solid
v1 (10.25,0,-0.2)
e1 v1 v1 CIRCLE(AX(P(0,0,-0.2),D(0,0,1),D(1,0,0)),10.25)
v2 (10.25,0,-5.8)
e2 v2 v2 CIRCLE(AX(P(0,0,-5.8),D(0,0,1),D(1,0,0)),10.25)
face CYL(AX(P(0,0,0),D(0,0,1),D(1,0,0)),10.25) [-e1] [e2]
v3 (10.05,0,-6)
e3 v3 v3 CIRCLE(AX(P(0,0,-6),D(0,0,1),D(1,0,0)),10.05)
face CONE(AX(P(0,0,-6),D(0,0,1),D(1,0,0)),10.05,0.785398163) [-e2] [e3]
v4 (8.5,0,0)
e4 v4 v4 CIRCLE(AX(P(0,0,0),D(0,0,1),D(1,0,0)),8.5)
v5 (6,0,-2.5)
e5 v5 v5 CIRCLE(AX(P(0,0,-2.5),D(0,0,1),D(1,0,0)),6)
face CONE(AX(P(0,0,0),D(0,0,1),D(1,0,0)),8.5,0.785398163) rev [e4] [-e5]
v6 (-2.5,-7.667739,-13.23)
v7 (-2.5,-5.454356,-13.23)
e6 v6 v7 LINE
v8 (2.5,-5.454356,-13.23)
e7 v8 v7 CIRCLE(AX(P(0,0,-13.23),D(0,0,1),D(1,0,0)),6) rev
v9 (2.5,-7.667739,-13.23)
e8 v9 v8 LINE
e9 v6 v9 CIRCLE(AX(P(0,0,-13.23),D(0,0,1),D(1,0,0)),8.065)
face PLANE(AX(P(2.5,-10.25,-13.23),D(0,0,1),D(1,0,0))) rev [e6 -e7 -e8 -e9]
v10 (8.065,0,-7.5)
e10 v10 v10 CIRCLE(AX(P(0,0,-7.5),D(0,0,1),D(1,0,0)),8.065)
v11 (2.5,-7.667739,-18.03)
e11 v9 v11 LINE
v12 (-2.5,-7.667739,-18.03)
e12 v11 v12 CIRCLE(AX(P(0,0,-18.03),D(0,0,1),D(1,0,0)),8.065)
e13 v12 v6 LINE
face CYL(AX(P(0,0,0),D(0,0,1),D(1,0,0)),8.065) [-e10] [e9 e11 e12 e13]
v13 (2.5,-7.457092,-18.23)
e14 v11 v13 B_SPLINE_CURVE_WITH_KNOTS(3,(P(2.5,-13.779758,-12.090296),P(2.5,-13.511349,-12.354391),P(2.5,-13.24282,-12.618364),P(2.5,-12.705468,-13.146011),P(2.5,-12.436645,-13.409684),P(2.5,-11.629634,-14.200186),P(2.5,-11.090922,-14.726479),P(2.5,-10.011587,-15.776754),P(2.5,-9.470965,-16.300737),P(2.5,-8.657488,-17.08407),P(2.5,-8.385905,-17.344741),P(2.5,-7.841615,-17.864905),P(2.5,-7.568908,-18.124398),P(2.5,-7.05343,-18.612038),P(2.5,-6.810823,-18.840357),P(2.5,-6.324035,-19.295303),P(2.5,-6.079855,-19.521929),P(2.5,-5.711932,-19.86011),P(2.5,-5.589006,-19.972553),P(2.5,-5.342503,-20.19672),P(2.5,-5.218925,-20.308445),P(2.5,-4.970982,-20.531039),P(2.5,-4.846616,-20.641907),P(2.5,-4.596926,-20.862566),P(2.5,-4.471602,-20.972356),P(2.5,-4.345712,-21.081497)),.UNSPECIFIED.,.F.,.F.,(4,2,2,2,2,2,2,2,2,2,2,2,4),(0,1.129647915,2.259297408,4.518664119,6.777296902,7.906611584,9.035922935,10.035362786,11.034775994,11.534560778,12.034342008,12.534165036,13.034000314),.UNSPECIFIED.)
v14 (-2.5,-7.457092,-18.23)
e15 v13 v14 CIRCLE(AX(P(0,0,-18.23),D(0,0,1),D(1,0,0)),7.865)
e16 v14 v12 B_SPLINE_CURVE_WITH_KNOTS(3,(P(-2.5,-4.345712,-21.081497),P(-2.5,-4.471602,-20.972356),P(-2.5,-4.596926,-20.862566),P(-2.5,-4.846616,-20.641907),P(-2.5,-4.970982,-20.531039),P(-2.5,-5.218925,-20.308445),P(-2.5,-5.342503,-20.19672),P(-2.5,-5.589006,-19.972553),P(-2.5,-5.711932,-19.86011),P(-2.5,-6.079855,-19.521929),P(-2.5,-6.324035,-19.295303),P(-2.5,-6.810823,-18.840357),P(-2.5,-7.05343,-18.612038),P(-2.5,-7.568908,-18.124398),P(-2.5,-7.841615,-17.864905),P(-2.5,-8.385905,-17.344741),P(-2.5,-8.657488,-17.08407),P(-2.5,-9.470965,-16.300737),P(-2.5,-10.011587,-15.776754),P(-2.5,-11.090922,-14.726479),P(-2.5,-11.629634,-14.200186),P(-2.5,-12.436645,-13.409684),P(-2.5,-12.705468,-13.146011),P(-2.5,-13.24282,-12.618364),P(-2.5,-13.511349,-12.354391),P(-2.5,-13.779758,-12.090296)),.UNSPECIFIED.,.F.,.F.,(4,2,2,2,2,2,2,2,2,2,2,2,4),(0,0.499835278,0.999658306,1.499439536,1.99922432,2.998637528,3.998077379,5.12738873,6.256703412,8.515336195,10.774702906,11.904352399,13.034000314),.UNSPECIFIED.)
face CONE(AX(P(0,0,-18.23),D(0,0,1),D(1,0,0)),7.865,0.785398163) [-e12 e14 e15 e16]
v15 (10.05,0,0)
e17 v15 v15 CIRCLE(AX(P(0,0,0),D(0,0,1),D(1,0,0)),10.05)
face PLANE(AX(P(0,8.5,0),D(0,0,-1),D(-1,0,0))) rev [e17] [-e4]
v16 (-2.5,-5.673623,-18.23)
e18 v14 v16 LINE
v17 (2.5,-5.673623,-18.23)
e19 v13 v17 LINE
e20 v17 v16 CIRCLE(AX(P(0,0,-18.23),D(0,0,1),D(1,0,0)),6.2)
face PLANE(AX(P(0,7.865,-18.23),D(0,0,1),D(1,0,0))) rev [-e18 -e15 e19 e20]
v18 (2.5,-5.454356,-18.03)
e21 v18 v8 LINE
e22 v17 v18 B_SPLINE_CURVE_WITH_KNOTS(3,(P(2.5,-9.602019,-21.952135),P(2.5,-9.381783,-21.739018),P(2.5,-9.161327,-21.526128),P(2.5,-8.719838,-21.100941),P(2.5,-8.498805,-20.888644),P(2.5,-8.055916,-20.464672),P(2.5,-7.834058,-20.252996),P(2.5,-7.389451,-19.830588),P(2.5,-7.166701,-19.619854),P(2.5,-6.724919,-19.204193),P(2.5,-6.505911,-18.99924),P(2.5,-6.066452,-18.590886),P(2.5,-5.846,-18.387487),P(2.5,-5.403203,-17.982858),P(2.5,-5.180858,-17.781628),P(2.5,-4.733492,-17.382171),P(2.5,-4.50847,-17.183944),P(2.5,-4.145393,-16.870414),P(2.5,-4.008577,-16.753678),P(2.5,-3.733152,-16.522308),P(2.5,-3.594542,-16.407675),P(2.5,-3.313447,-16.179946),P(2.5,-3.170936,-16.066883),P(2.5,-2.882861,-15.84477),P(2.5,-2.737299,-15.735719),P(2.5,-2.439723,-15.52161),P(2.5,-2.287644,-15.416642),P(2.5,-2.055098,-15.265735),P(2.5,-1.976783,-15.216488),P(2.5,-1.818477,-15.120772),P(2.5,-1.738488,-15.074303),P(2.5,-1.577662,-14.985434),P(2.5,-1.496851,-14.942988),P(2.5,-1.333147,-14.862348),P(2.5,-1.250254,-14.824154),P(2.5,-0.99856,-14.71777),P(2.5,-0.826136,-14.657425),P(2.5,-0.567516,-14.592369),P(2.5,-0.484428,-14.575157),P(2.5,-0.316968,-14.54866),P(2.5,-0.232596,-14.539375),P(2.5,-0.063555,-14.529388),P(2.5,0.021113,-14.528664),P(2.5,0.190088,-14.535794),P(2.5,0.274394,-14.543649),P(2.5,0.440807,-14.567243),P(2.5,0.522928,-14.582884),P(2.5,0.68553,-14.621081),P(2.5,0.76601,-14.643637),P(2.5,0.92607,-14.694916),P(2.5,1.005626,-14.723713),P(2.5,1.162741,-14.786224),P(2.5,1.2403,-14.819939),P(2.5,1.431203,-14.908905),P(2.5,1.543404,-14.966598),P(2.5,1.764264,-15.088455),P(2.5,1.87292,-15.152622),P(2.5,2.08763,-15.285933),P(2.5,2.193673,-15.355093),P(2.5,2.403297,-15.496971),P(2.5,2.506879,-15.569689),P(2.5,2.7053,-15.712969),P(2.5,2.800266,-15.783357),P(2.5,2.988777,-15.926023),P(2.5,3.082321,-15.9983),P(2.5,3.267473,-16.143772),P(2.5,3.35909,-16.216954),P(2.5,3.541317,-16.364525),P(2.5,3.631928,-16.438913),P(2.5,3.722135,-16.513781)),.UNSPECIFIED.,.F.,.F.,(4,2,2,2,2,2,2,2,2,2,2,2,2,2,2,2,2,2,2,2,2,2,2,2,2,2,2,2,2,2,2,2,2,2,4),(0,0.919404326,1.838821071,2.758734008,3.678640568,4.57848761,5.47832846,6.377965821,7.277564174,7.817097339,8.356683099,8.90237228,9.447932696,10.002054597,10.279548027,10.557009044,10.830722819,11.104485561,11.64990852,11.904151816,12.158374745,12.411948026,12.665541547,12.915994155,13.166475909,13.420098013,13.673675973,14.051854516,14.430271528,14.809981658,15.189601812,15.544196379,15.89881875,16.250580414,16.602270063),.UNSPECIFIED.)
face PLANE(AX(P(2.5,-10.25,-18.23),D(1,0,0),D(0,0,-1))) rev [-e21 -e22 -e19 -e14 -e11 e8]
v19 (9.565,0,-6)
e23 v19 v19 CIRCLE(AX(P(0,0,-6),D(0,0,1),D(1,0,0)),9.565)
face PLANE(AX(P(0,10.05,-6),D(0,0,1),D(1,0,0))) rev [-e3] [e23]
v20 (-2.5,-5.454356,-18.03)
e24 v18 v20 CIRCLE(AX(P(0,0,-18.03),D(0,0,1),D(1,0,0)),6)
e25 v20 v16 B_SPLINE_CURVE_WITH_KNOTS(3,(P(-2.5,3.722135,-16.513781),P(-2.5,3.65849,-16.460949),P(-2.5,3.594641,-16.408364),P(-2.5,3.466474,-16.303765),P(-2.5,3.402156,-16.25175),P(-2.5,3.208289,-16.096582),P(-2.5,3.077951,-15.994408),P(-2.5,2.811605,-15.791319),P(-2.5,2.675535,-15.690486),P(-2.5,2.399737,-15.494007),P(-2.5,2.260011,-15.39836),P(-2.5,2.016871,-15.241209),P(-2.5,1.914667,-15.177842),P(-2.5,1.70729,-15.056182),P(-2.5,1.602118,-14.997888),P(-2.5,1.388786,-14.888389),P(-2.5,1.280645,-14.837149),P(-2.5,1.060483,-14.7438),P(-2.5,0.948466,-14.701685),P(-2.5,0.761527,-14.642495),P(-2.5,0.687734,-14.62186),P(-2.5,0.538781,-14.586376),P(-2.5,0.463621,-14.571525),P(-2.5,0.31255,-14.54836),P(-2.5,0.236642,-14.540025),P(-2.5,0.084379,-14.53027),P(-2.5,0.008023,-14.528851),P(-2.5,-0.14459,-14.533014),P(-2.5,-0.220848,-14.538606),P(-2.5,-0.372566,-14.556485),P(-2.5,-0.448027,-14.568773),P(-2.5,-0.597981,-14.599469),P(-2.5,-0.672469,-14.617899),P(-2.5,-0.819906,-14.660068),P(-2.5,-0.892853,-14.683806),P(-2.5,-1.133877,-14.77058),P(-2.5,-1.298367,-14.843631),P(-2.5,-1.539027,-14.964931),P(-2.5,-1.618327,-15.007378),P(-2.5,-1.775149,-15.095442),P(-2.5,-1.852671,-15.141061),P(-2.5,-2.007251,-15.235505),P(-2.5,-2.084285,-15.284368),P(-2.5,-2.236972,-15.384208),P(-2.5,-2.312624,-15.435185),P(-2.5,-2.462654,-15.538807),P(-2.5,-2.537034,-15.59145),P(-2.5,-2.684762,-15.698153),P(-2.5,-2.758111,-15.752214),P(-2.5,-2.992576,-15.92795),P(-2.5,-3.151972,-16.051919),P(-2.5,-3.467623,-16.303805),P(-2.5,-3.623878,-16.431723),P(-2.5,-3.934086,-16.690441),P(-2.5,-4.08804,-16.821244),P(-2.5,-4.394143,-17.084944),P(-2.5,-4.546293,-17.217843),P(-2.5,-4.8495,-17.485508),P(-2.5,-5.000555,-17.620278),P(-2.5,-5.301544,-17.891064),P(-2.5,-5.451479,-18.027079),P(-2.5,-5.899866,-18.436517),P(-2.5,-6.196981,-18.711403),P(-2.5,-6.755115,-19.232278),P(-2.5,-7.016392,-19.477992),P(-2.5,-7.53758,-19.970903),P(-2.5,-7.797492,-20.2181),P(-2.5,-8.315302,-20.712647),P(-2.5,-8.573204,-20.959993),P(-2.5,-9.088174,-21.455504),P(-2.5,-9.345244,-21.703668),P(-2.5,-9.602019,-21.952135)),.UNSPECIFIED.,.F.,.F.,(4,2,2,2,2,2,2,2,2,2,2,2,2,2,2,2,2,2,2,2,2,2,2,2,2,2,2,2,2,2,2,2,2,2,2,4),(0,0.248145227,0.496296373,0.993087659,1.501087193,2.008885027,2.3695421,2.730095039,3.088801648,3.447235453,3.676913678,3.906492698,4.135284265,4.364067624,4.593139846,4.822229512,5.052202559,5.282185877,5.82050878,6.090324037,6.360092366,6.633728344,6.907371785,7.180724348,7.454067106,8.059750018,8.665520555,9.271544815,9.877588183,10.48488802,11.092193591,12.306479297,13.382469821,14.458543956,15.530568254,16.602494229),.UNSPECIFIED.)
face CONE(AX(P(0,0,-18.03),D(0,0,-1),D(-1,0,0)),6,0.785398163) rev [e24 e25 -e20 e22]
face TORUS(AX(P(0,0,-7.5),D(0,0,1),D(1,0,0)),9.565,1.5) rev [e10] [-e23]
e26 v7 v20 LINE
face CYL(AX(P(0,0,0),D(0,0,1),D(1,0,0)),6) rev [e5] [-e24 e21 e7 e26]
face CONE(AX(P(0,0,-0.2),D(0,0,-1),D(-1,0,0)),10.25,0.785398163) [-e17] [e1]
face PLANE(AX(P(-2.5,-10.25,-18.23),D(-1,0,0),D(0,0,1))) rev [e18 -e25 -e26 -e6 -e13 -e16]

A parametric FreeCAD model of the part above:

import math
import FreeCAD as App
import Part
import Sketcher

V = App.Vector

doc = App.newDocument("Part")
params = doc.addObject("Spreadsheet::Sheet", "Params")
for row, (alias, value) in enumerate([
    ("sketch1_radius", "1.5 mm"),
    ("sketch1_height", "5.6 mm"),
    ("sketch1_width", "1.55 mm"),
    ("sketch1_height2", "15.53 mm"),
    ("revolution_angle", "360 deg"),
    ("sketch2_width", "5 mm"),
], start=1):
    params.set(f"A{row}", alias)
    params.set(f"B{row}", "=" + value)
    params.setAlias(f"B{row}", alias)

body = doc.addObject("PartDesign::Body", "Body")

# Sketch on YZ plane
sketch1 = doc.addObject("Sketcher::SketchObject", "Sketch")
body.addObject(sketch1)
sketch1.AttachmentSupport = (doc.YZ_Plane, [""])
sketch1.MapMode = "FlatFace"
sketch1.addGeometry([
    Part.LineSegment(V(10.05, 0, 0), V(8.5, 0, 0)),  # 0
    Part.LineSegment(V(8.5, 0, 0), V(6, -2.5, 0)),  # 1
    Part.LineSegment(V(6, -2.5, 0), V(6, -18.03, 0)),  # 2
    Part.LineSegment(V(6, -18.03, 0), V(6.2, -18.23, 0)),  # 3
    Part.LineSegment(V(6.2, -18.23, 0), V(7.87, -18.23, 0)),  # 4
    Part.LineSegment(V(7.87, -18.23, 0), V(8.06, -18.03, 0)),  # 5
    Part.LineSegment(V(8.06, -18.03, 0), V(8.06, -7.5, 0)),  # 6
    Part.ArcOfCircle(Part.Circle(V(9.56, -7.5, 0), V(0, 0, 1), 1.5), math.radians(90), math.radians(180)),  # 7
    Part.LineSegment(V(9.56, -6, 0), V(10.05, -6, 0)),  # 8
    Part.LineSegment(V(10.05, -6, 0), V(10.25, -5.8, 0)),  # 9
    Part.LineSegment(V(10.25, -5.8, 0), V(10.25, -0.2, 0)),  # 10
    Part.LineSegment(V(10.25, -0.2, 0), V(10.05, 0, 0)),  # 11
], False)
sketch1.addConstraint([
    Sketcher.Constraint("Coincident", 0, 2, 1, 1),
    Sketcher.Constraint("Coincident", 1, 2, 2, 1),
    Sketcher.Constraint("Coincident", 2, 2, 3, 1),
    Sketcher.Constraint("Coincident", 3, 2, 4, 1),
    Sketcher.Constraint("Coincident", 4, 2, 5, 1),
    Sketcher.Constraint("Coincident", 5, 2, 6, 1),
    Sketcher.Constraint("Tangent", 6, 2, 7, 2),
    Sketcher.Constraint("Tangent", 7, 1, 8, 1),
    Sketcher.Constraint("Coincident", 8, 2, 9, 1),
    Sketcher.Constraint("Coincident", 9, 2, 10, 1),
    Sketcher.Constraint("Coincident", 10, 2, 11, 1),
    Sketcher.Constraint("Coincident", 11, 2, 0, 1),
    Sketcher.Constraint("Horizontal", 0),
    Sketcher.Constraint("Vertical", 2),
    Sketcher.Constraint("Horizontal", 4),
    Sketcher.Constraint("Vertical", 6),
    Sketcher.Constraint("Horizontal", 8),
    Sketcher.Constraint("Vertical", 10),
    Sketcher.Constraint("PointOnObject", 0, 2, -1),
    Sketcher.Constraint("Perpendicular", 1, 3),
    Sketcher.Constraint("Perpendicular", 3, 5),
    Sketcher.Constraint("Parallel", 5, 9),
    Sketcher.Constraint("Perpendicular", 9, 11),
    Sketcher.Constraint("Horizontal", 2, 2, 5, 2),
    Sketcher.Constraint("Vertical", 8, 2, 11, 2),
    Sketcher.Constraint("Equal", 3, 5),
    Sketcher.Constraint("Equal", 5, 9),
    Sketcher.Constraint("Radius", 7, 1.5),
    Sketcher.Constraint("DistanceY", 10, 1, 10, 2, 5.6),
    Sketcher.Constraint("DistanceX", -1, 1, 1, 2, 6.0),
    Sketcher.Constraint("DistanceY", 7, 1, -1, 1, 6.0),
    Sketcher.Constraint("DistanceY", 7, 3, 1, 2, 5.0),
    Sketcher.Constraint("DistanceX", 0, 2, 0, 1, 1.55),
    Sketcher.Constraint("DistanceY", 2, 2, 2, 1, 15.53),
    Sketcher.Constraint("DistanceX", 4, 1, 4, 2, 1.665),
])
sketch1.setExpression("Constraints[27]", "Params.sketch1_radius")
sketch1.setExpression("Constraints[28]", "Params.sketch1_height")
sketch1.setExpression("Constraints[32]", "Params.sketch1_width")
sketch1.setExpression("Constraints[33]", "Params.sketch1_height2")
revolution = doc.addObject("PartDesign::Revolution", "Revolution")
body.addObject(revolution)
revolution.Profile = sketch1
revolution.ReferenceAxis = (sketch1, ["V_Axis"])
revolution.setExpression("Angle", "Params.revolution_angle")

# Sketch on XZ plane
sketch2 = doc.addObject("Sketcher::SketchObject", "Sketch001")
body.addObject(sketch2)
sketch2.AttachmentSupport = (doc.XZ_Plane, [""])
sketch2.MapMode = "FlatFace"
sketch2.addGeometry([
    Part.LineSegment(V(-2, -18, 0), V(-2, -13, 0)),
    Part.LineSegment(V(-2, -13, 0), V(2, -13, 0)),
    Part.LineSegment(V(2, -13, 0), V(2, -18, 0)),
    Part.LineSegment(V(2, -18, 0), V(-2, -18, 0)),
], False)
sketch2.addConstraint([
    Sketcher.Constraint("Coincident", 0, 2, 1, 1),
    Sketcher.Constraint("Coincident", 1, 2, 2, 1),
    Sketcher.Constraint("Coincident", 2, 2, 3, 1),
    Sketcher.Constraint("Coincident", 3, 2, 0, 1),
    Sketcher.Constraint("Vertical", 0),
    Sketcher.Constraint("Horizontal", 1),
    Sketcher.Constraint("Vertical", 2),
    Sketcher.Constraint("Horizontal", 3),
    Sketcher.Constraint("Equal", 3, 0),
    Sketcher.Constraint("DistanceX", 1, 1, 1, 2, 5.0),
    Sketcher.Constraint("DistanceX", 0, 2, -1, 1, 2.5),
    Sketcher.Constraint("DistanceY", 0, 2, -1, 1, 13.23),
])
sketch2.setExpression("Constraints[9]", "Params.sketch2_width")
pocket1 = doc.addObject("PartDesign::Pocket", "Pocket")
body.addObject(pocket1)
pocket1.Profile = sketch2
pocket1.Type = "ThroughAll"
pocket1.Reversed = True

doc.recompute()
